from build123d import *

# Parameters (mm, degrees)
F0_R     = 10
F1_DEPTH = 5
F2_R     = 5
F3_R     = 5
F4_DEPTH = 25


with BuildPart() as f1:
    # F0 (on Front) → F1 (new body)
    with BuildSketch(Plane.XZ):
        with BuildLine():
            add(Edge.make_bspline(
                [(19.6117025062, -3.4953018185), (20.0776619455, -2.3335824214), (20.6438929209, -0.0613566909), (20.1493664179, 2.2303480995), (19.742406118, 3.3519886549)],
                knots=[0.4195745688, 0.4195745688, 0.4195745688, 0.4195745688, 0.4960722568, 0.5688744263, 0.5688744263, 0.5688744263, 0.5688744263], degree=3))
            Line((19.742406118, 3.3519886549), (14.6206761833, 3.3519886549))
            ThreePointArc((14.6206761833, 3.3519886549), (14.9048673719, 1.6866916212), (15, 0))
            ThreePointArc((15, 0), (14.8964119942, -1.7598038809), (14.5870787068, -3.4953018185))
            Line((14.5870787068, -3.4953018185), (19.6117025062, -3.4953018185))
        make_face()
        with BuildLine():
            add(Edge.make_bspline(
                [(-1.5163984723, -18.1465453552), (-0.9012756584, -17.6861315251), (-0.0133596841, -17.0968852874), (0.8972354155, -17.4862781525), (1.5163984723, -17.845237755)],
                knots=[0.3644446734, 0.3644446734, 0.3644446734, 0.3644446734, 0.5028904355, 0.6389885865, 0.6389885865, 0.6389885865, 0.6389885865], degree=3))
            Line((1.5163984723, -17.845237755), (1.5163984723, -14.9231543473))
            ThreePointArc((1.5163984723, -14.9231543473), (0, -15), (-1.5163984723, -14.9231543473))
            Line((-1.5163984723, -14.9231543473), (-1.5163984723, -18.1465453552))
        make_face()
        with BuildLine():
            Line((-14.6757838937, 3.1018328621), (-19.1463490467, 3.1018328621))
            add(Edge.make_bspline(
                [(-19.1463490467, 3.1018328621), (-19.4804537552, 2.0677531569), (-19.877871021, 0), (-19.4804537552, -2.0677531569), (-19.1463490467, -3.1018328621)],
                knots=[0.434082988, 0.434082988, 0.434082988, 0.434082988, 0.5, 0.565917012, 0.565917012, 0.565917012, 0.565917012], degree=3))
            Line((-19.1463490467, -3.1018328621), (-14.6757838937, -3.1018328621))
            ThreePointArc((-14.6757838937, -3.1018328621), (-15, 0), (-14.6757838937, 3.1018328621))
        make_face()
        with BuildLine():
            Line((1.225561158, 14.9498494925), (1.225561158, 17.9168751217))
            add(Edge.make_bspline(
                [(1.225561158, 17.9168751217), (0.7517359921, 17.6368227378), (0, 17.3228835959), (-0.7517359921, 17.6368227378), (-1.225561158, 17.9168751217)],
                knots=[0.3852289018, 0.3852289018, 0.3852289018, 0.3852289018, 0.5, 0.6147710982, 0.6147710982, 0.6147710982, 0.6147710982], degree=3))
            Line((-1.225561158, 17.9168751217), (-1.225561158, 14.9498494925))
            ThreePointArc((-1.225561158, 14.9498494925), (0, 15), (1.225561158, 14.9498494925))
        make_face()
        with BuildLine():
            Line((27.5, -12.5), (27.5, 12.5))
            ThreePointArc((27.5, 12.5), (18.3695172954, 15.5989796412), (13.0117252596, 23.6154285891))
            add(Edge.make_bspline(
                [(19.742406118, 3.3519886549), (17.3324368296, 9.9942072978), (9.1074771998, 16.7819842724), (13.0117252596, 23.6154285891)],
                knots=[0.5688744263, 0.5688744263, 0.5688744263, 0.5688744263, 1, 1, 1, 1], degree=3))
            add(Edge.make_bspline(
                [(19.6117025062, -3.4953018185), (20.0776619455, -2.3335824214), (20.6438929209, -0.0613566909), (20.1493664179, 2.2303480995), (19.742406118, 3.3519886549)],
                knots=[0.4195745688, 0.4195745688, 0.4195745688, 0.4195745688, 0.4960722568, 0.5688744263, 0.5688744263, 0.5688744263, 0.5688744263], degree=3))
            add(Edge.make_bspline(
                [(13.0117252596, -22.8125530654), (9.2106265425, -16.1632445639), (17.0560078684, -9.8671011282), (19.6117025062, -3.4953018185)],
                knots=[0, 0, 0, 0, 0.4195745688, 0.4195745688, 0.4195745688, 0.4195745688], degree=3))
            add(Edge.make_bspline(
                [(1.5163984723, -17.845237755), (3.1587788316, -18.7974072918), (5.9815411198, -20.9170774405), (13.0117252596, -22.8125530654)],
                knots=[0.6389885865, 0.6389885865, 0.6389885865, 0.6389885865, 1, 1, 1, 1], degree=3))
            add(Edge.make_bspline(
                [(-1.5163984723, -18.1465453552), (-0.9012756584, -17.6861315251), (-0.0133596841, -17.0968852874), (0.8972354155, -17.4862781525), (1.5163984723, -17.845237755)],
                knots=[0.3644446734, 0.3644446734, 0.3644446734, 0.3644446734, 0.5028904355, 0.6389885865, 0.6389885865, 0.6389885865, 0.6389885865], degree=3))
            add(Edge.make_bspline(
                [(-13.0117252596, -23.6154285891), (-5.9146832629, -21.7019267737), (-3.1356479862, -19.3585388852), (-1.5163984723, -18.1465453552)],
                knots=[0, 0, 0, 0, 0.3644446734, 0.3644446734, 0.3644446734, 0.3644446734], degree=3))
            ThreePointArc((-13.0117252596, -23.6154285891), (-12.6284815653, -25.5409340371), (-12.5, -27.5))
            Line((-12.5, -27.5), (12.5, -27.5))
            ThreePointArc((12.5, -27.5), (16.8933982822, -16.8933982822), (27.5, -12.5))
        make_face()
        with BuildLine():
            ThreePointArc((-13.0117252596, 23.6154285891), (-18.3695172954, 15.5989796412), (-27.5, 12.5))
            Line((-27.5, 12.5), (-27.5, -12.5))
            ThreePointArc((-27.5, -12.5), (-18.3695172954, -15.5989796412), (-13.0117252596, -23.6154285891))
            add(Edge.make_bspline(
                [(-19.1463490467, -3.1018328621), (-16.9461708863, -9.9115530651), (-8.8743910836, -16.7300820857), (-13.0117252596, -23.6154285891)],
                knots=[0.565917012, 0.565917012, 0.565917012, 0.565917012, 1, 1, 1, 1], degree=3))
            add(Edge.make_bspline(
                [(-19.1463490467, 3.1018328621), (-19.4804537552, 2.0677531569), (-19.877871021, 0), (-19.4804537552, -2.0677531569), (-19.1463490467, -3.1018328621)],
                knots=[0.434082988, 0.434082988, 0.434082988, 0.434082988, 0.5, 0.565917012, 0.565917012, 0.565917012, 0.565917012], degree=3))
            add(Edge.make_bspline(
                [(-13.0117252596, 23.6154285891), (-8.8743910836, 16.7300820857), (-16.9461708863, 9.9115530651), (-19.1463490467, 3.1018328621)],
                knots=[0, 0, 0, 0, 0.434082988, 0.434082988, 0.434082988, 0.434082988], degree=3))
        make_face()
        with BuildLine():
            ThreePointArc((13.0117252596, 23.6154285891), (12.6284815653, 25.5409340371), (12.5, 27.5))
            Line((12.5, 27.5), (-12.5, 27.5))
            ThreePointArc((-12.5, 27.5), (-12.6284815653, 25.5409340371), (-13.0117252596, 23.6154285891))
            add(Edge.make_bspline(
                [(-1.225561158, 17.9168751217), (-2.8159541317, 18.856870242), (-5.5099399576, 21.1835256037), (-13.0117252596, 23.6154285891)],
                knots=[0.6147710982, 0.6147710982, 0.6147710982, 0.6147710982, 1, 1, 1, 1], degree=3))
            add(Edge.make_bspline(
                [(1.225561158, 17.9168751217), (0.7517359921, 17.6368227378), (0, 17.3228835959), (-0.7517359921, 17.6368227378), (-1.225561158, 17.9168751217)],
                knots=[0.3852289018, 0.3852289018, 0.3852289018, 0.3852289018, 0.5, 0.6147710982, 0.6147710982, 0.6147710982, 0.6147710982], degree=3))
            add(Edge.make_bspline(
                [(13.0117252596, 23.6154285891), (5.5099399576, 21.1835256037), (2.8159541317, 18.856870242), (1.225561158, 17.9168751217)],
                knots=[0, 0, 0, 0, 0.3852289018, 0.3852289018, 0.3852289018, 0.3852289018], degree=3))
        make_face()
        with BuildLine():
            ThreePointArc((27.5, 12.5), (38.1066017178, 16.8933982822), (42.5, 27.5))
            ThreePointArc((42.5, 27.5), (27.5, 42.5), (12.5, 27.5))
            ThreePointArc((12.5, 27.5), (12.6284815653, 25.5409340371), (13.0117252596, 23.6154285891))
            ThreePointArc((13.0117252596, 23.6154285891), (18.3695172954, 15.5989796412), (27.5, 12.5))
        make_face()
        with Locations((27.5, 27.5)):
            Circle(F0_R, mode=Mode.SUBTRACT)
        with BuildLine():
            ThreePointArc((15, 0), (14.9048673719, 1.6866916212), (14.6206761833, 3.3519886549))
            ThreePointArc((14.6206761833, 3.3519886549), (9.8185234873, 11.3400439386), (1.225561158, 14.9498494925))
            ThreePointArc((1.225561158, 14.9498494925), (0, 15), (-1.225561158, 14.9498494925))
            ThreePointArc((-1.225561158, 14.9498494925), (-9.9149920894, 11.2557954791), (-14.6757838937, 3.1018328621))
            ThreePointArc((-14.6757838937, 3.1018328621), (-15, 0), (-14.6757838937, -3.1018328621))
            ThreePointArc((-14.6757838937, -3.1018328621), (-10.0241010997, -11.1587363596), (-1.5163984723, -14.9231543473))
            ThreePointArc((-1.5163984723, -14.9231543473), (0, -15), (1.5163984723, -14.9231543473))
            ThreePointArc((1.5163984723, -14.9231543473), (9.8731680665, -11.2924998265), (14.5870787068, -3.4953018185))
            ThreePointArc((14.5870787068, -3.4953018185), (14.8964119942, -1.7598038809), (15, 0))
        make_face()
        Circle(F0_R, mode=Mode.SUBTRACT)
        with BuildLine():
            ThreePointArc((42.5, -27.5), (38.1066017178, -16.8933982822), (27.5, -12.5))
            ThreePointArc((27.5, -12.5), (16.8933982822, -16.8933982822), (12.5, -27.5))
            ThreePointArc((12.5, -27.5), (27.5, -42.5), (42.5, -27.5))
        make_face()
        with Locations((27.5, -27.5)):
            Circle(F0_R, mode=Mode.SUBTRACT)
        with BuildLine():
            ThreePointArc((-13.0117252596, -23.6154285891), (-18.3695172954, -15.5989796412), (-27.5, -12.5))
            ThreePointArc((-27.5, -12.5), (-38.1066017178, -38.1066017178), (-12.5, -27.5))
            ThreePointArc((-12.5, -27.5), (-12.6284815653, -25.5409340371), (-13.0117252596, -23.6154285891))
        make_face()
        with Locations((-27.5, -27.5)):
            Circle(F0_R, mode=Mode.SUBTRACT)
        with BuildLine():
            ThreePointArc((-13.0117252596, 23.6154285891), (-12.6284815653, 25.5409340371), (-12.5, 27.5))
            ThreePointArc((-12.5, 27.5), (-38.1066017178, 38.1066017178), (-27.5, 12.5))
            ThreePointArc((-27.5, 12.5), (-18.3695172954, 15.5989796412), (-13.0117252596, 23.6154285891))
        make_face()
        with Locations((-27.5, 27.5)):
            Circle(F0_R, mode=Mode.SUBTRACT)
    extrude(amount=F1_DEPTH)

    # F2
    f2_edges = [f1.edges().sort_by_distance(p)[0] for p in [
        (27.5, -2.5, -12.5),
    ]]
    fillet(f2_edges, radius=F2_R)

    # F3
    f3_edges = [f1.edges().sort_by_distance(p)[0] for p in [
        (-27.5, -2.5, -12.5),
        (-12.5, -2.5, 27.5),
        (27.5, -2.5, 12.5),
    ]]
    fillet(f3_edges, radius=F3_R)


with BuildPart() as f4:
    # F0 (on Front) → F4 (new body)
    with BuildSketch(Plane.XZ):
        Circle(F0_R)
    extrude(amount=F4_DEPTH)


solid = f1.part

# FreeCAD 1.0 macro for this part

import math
import FreeCAD as App
import Part
import Sketcher

V = App.Vector
Q = App.Units.Quantity


def edges_at(feature, points):
    """Names of the edges that pass closest to the given points."""
    edges = feature.Shape.Edges
    near = lambda p: min(range(len(edges)), key=lambda i: edges[i].distToShape(Part.Vertex(*p))[0])
    return sorted({f"Edge{near(p) + 1}" for p in points})

doc = App.newDocument("Part")
body = doc.addObject("PartDesign::Body", "Body")

sketch1 = body.newObject("Sketcher::SketchObject", "Sketch")
sketch1.AttachmentSupport = (doc.getObject("XZ_Plane"), [""])
sketch1.MapMode = "FlatFace"
sketch1.addGeometry([
    Part.LineSegment(V(12.5, 27.5, 0), V(-12.5, 27.5, 0)),
    Part.ArcOfCircle(Part.Circle(V(-27.5, 27.5, 0), V(0, 0, 1), 15), math.radians(0), math.radians(270)),
    Part.LineSegment(V(-27.5, 12.5, 0), V(-27.5, -12.5, 0)),
    Part.ArcOfCircle(Part.Circle(V(-27.5, -27.5, 0), V(0, 0, 1), 15), math.radians(90), math.radians(360)),
    Part.LineSegment(V(-12.5, -27.5, 0), V(12.5, -27.5, 0)),
    Part.ArcOfCircle(Part.Circle(V(27.5, -27.5, 0), V(0, 0, 1), 15), math.radians(180), math.radians(450)),
    Part.LineSegment(V(27.5, -12.5, 0), V(27.5, 12.5, 0)),
    Part.ArcOfCircle(Part.Circle(V(27.5, 27.5, 0), V(0, 0, 1), 15), math.radians(-90), math.radians(180)),
    Part.Circle(V(-27.5, -27.5, 0), V(0, 0, 1), 10),
    Part.BSplineCurve([V(-13.011725, -23.615429, 0), V(-5.914683, -21.701927, 0), V(-3.135648, -19.358539, 0), V(-1.516398, -18.146545, 0)], [4, 4], [0, 0.364444673], False, 3, [1, 1, 1, 1], False),
    Part.BSplineCurve([V(-19.146349, -3.101833, 0), V(-16.946171, -9.911553, 0), V(-8.874391, -16.730082, 0), V(-13.011725, -23.615429, 0)], [4, 4], [0.565917012, 1], False, 3, [1, 1, 1, 1], False),
    Part.LineSegment(V(-19.146349, -3.101833, 0), V(-14.675784, -3.101833, 0)),
    Part.ArcOfCircle(Part.Circle(V(0, 0, 0), V(0, 0, 1), 15), math.radians(-168.065763), math.radians(-95.802127)),
    Part.LineSegment(V(-1.516398, -14.923154, 0), V(-1.516398, -18.146545, 0)),
    Part.Circle(V(27.5, -27.5, 0), V(0, 0, 1), 10),
    Part.LineSegment(V(14.587079, -3.495302, 0), V(19.611703, -3.495302, 0)),
    Part.BSplineCurve([V(13.011725, -22.812553, 0), V(9.210627, -16.163245, 0), V(17.056008, -9.867101, 0), V(19.611703, -3.495302, 0)], [4, 4], [0, 0.419574569], False, 3, [1, 1, 1, 1], False),
    Part.BSplineCurve([V(1.516398, -17.845238, 0), V(3.158779, -18.797407, 0), V(5.981541, -20.917077, 0), V(13.011725, -22.812553, 0)], [4, 4], [0.638988587, 1], False, 3, [1, 1, 1, 1], False),
    Part.LineSegment(V(1.516398, -17.845238, 0), V(1.516398, -14.923154, 0)),
    Part.ArcOfCircle(Part.Circle(V(0, 0, 0), V(0, 0, 1), 15), math.radians(-84.197873), math.radians(-13.474944)),
    Part.BSplineCurve([V(-13.011725, 23.615429, 0), V(-8.874391, 16.730082, 0), V(-16.946171, 9.911553, 0), V(-19.146349, 3.101833, 0)], [4, 4], [0, 0.434082988], False, 3, [1, 1, 1, 1], False),
    Part.BSplineCurve([V(-1.225561, 17.916875, 0), V(-2.815954, 18.85687, 0), V(-5.50994, 21.183526, 0), V(-13.011725, 23.615429, 0)], [4, 4], [0.614771098, 1], False, 3, [1, 1, 1, 1], False),
    Part.LineSegment(V(-1.225561, 17.916875, 0), V(-1.225561, 14.949849, 0)),
    Part.ArcOfCircle(Part.Circle(V(0, 0, 0), V(0, 0, 1), 15), math.radians(94.686523), math.radians(168.065763)),
    Part.LineSegment(V(-14.675784, 3.101833, 0), V(-19.146349, 3.101833, 0)),
    Part.Circle(V(-27.5, 27.5, 0), V(0, 0, 1), 10),
    Part.Circle(V(0, 0, 0), V(0, 0, 1), 10),
    Part.LineSegment(V(19.742406, 3.351989, 0), V(14.620676, 3.351989, 0)),
    Part.ArcOfCircle(Part.Circle(V(0, 0, 0), V(0, 0, 1), 15), math.radians(12.912685), math.radians(85.313477)),
    Part.LineSegment(V(1.225561, 14.949849, 0), V(1.225561, 17.916875, 0)),
    Part.BSplineCurve([V(13.011725, 23.615429, 0), V(5.50994, 21.183526, 0), V(2.815954, 18.85687, 0), V(1.225561, 17.916875, 0)], [4, 4], [0, 0.385228902], False, 3, [1, 1, 1, 1], False),
    Part.BSplineCurve([V(19.742406, 3.351989, 0), V(17.332437, 9.994207, 0), V(9.107477, 16.781984, 0), V(13.011725, 23.615429, 0)], [4, 4], [0.568874426, 1], False, 3, [1, 1, 1, 1], False),
    Part.Circle(V(27.5, 27.5, 0), V(0, 0, 1), 10),
], False)
sketch1.addConstraint([
    Sketcher.Constraint("Block", 9),
    Sketcher.Constraint("Block", 10),
    Sketcher.Constraint("Block", 16),
    Sketcher.Constraint("Block", 17),
    Sketcher.Constraint("Block", 20),
    Sketcher.Constraint("Block", 21),
    Sketcher.Constraint("Block", 30),
    Sketcher.Constraint("Block", 31),
    Sketcher.Constraint("Coincident", 0, 2, 1, 1),
    Sketcher.Constraint("Coincident", 1, 2, 2, 1),
    Sketcher.Constraint("Coincident", 2, 2, 3, 1),
    Sketcher.Constraint("Coincident", 3, 2, 4, 1),
    Sketcher.Constraint("Coincident", 4, 2, 5, 1),
    Sketcher.Constraint("Coincident", 5, 2, 6, 1),
    Sketcher.Constraint("Coincident", 6, 2, 7, 1),
    Sketcher.Constraint("Coincident", 7, 2, 0, 1),
    Sketcher.Constraint("Coincident", 10, 1, 11, 1),
    Sketcher.Constraint("Coincident", 11, 2, 12, 1),
    Sketcher.Constraint("Coincident", 12, 2, 13, 1),
    Sketcher.Constraint("Coincident", 13, 2, 9, 2),
    Sketcher.Constraint("Coincident", 15, 2, 16, 2),
    Sketcher.Constraint("Coincident", 17, 1, 18, 1),
    Sketcher.Constraint("Coincident", 18, 2, 19, 1),
    Sketcher.Constraint("Coincident", 19, 2, 15, 1),
    Sketcher.Constraint("Coincident", 21, 1, 22, 1),
    Sketcher.Constraint("Coincident", 22, 2, 23, 1),
    Sketcher.Constraint("Coincident", 23, 2, 24, 1),
    Sketcher.Constraint("Coincident", 24, 2, 20, 2),
    Sketcher.Constraint("Coincident", 27, 2, 28, 1),
    Sketcher.Constraint("Coincident", 28, 2, 29, 1),
    Sketcher.Constraint("Coincident", 29, 2, 30, 2),
    Sketcher.Constraint("Coincident", 31, 1, 27, 1),
    Sketcher.Constraint("Horizontal", 0),
    Sketcher.Constraint("Vertical", 2),
    Sketcher.Constraint("Horizontal", 4),
    Sketcher.Constraint("Vertical", 6),
    Sketcher.Constraint("Horizontal", 11),
    Sketcher.Constraint("Vertical", 13),
    Sketcher.Constraint("Horizontal", 15),
    Sketcher.Constraint("Vertical", 18),
    Sketcher.Constraint("Vertical", 22),
    Sketcher.Constraint("Horizontal", 24),
    Sketcher.Constraint("Horizontal", 27),
    Sketcher.Constraint("Vertical", 29),
    Sketcher.Constraint("Coincident", 12, 3, -1, 1),
    Sketcher.Constraint("Coincident", 19, 3, -1, 1),
    Sketcher.Constraint("Coincident", 23, 3, -1, 1),
    Sketcher.Constraint("Coincident", 26, 3, -1, 1),
    Sketcher.Constraint("Coincident", 28, 3, -1, 1),
    Sketcher.Constraint("Coincident", 8, 3, 3, 3),
    Sketcher.Constraint("Coincident", 14, 3, 5, 3),
    Sketcher.Constraint("Coincident", 25, 3, 1, 3),
    Sketcher.Constraint("Coincident", 32, 3, 7, 3),
    Sketcher.Constraint("Equal", 1, 3),
    Sketcher.Constraint("Equal", 3, 5),
    Sketcher.Constraint("Equal", 5, 7),
    Sketcher.Constraint("Equal", 7, 12),
    Sketcher.Constraint("Equal", 8, 14),
    Sketcher.Constraint("Equal", 12, 19),
    Sketcher.Constraint("Equal", 19, 23),
    Sketcher.Constraint("Equal", 14, 25),
    Sketcher.Constraint("Equal", 25, 26),
    Sketcher.Constraint("Equal", 23, 28),
    Sketcher.Constraint("Equal", 26, 32),
    Sketcher.Constraint("Symmetric", 1, 3, 5, 3, -1, 1),
    Sketcher.Constraint("Symmetric", 3, 3, 7, 3, -1, 1),
    Sketcher.Constraint("Symmetric", 3, 3, 5, 3, -2),
    Sketcher.Constraint("Horizontal", 32, 3, 0, 2),
    Sketcher.Constraint("Horizontal", 14, 3, 3, 2),
    Sketcher.Constraint("Vertical", 25, 3, 1, 2),
    Sketcher.Constraint("Vertical", 32, 3, 5, 2),
    Sketcher.Constraint("Equal", 4, 2),
    Sketcher.Constraint("Diameter", 8, Q("20 mm")),
    Sketcher.Constraint("Radius", 1, Q("15 mm")),
    Sketcher.Constraint("DistanceX", 0, 2, 0, 1, Q("25 mm")),
])
pad1 = body.newObject("PartDesign::Pad", "Pad")
pad1.Profile = sketch1
pad1.Length = 5
doc.recompute()

fillet = body.newObject("PartDesign::Fillet", "Fillet")
fillet.Base = (pad1, edges_at(pad1, [(27.5, -2.5, -12.5)]))
fillet.Radius = 5
doc.recompute()

fillet2 = body.newObject("PartDesign::Fillet", "Fillet001")
fillet2.Base = (fillet, edges_at(fillet, [(-27.5, -2.5, -12.5), (-12.5, -2.5, 27.5), (27.5, -2.5, 12.5)]))
fillet2.Radius = 5
body2 = doc.addObject("PartDesign::Body", "Body001")

sketch2 = body2.newObject("Sketcher::SketchObject", "Sketch001")
sketch2.AttachmentSupport = (doc.getObject("XZ_Plane001"), [""])
sketch2.MapMode = "FlatFace"
sketch2.addGeometry(Part.Circle(V(0, 0, 0), V(0, 0, 1), 10), False)
sketch2.addConstraint([
    Sketcher.Constraint("Coincident", 0, 3, -1, 1),
    Sketcher.Constraint("Diameter", 0, Q("20 mm")),
])
pad2 = body2.newObject("PartDesign::Pad", "Pad001")
pad2.Profile = sketch2
pad2.Length = 25
body2.Visibility = False

doc.recompute()
